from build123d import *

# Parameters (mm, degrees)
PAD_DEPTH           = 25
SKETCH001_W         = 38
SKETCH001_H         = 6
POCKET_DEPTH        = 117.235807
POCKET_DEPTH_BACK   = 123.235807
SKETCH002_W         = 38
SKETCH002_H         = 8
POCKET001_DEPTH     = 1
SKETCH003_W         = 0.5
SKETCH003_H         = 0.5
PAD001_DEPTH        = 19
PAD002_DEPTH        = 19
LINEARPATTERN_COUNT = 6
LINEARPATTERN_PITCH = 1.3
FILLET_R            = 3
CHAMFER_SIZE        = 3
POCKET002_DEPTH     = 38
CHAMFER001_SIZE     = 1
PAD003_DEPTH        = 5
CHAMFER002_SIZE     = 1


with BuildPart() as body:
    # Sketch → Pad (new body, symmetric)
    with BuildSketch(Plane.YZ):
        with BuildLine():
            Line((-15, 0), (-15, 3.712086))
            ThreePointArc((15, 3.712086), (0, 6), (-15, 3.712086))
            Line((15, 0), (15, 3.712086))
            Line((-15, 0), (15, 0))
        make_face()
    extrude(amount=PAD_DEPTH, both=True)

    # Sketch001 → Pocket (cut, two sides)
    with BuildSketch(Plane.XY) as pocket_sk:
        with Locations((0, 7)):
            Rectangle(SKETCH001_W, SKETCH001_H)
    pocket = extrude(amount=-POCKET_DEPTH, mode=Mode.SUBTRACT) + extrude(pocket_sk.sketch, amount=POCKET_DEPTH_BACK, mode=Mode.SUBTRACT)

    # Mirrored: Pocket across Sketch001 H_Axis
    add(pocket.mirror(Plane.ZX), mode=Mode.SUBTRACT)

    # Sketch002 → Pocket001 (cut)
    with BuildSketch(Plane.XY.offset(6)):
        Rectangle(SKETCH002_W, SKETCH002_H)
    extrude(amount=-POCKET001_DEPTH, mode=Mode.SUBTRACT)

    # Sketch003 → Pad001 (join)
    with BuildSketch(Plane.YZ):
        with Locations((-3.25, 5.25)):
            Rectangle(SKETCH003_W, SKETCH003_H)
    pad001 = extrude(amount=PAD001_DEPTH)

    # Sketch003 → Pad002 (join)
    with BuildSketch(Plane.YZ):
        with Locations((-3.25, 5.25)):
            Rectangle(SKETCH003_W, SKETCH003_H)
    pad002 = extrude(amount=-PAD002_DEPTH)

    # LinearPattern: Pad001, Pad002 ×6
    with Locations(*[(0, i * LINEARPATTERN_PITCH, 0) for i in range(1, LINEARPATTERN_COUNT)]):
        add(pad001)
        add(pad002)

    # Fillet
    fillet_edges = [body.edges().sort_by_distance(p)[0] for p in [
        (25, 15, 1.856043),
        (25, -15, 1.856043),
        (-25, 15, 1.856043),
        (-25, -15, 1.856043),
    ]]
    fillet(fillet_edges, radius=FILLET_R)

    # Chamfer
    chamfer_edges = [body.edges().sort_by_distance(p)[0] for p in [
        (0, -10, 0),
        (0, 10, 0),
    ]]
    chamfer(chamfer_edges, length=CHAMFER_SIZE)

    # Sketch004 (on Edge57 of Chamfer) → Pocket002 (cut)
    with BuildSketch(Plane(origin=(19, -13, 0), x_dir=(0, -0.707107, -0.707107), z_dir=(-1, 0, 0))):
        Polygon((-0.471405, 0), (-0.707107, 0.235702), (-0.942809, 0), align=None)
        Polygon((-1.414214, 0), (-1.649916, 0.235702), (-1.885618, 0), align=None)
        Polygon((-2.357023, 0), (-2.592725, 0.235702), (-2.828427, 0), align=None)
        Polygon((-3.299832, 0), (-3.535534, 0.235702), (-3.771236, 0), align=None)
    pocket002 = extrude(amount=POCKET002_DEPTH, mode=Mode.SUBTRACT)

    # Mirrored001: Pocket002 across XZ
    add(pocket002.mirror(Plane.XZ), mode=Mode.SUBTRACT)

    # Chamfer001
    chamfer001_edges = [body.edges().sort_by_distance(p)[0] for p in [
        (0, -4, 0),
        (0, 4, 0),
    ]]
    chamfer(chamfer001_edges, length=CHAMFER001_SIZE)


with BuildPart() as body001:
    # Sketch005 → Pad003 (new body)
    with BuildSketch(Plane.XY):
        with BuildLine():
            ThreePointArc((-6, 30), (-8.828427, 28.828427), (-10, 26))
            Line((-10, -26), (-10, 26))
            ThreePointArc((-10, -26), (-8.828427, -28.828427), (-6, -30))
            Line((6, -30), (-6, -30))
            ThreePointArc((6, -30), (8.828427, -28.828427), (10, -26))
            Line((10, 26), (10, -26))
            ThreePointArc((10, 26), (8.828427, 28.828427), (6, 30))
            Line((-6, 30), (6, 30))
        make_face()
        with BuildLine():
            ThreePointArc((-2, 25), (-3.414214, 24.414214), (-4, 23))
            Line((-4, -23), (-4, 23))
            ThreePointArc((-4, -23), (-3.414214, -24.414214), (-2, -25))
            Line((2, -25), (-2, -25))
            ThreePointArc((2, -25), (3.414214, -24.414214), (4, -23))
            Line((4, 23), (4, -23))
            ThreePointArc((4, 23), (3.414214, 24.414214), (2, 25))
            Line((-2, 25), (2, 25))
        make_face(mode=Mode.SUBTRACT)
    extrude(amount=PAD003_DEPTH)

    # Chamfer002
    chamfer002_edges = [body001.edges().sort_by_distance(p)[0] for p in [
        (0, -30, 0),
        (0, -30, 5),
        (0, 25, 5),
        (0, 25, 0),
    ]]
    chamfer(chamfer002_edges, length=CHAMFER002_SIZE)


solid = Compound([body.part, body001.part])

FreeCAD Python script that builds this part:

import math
import FreeCAD as App
import Part
import Sketcher

V = App.Vector
Q = App.Units.Quantity


def edges_at(feature, points):
    """Names of the edges that pass closest to the given points."""
    edges = feature.Shape.Edges
    near = lambda p: min(range(len(edges)), key=lambda i: edges[i].distToShape(Part.Vertex(*p))[0])
    return sorted({f"Edge{near(p) + 1}" for p in points})


def add_polygon(sketch, points):
    """Adds a closed chain of lines whose ends are joined by coincident constraints."""
    first, n = sketch.GeometryCount, len(points)
    for a, b in zip(points, points[1:] + points[:1]):
        sketch.addGeometry(Part.LineSegment(App.Vector(*a, 0), App.Vector(*b, 0)), False)
    for i in range(n):
        sketch.addConstraint(Sketcher.Constraint("Coincident", first + i, 2, first + (i + 1) % n, 1))

doc = App.newDocument("Part")
params = doc.addObject("Spreadsheet::Sheet", "Params")
for row, (alias, value) in enumerate([
    ("sketch1_width", "30 mm"),
    ("pad1_length", "50 mm"),
    ("sketch2_width", "38 mm"),
    ("sketch2_height", "6 mm"),
    ("sketch3_width", "38 mm"),
    ("sketch3_height", "8 mm"),
    ("pocket2_length", "1 mm"),
    ("sketch4_width", "0.5 mm"),
    ("pad2_length", "19 mm"),
    ("sketch5_width", "0.5 mm"),
    ("pad3_length", "19 mm"),
    ("linearpattern_pitch", "1.3 mm"),
    ("fillet_radius", "3 mm"),
    ("chamfer_size", "3 mm"),
    ("pocket3_length", "38 mm"),
    ("chamfer2_size", "1 mm"),
    ("sketch7_radius", "4 mm"),
    ("sketch7_radius2", "1.999999 mm"),
    ("sketch7_width", "12 mm"),
    ("sketch7_width2", "4 mm"),
    ("sketch7_height", "52 mm"),
    ("pad4_length", "5 mm"),
    ("chamfer3_size", "1 mm"),
], start=1):
    params.set(f"A{row}", alias)
    params.set(f"B{row}", "=" + value)
    params.setAlias(f"B{row}", alias)

body = doc.addObject("PartDesign::Body", "Body")

# Sketch on YZ plane
sketch1 = body.newObject("Sketcher::SketchObject", "Sketch")
sketch1.AttachmentSupport = (doc.getObject("YZ_Plane"), [""])
sketch1.MapMode = "FlatFace"
sketch1.addGeometry(Part.LineSegment(V(-15, 3.7, 0), V(-15, 0, 0)), False)
sketch1.addGeometry(Part.LineSegment(V(-15, 0, 0), V(15, 0, 0)), False)
sketch1.addGeometry(Part.LineSegment(V(15, 0, 0), V(15, 3.7, 0)), False)
sketch1.addGeometry(Part.ArcOfCircle(Part.Circle(V(0, -44.3, 0), V(0, 0, 1), 50.3), math.radians(73), math.radians(107)), False)
sketch1.addConstraint(Sketcher.Constraint("Coincident", 0, 2, 1, 1))
sketch1.addConstraint(Sketcher.Constraint("Coincident", 1, 2, 2, 1))
sketch1.addConstraint(Sketcher.Constraint("Coincident", 2, 2, 3, 1))
sketch1.addConstraint(Sketcher.Constraint("Coincident", 3, 2, 0, 1))
sketch1.addConstraint(Sketcher.Constraint("Vertical", 0))
sketch1.addConstraint(Sketcher.Constraint("Horizontal", 1))
sketch1.addConstraint(Sketcher.Constraint("Vertical", 2))
sketch1.addConstraint(Sketcher.Constraint("Symmetric", 0, 2, 1, 2, -1, 1))
sketch1.addConstraint(Sketcher.Constraint("PointOnObject", 3, 3, -2))
sketch1.addConstraint(Sketcher.Constraint("DistanceX", 1, 1, 1, 2, Q("30 mm")))
sketch1.addConstraint(Sketcher.Constraint("Radius", 3, Q("50.315386 mm")))
sketch1.addConstraint(Sketcher.Constraint("DistanceY", 0, 2, 0, 1, Q("3.712086 mm")))
sketch1.setExpression("Constraints[9]", "Params.sketch1_width")
pad1 = body.newObject("PartDesign::Pad", "Pad")
pad1.Profile = sketch1
pad1.setExpression("Length", "Params.pad1_length")
pad1.Midplane = True

# Sketch on XY plane
sketch2 = body.newObject("Sketcher::SketchObject", "Sketch001")
sketch2.AttachmentSupport = (doc.getObject("XY_Plane"), [""])
sketch2.MapMode = "FlatFace"
add_polygon(sketch2, [(-19, 10), (-19, 4), (19, 4), (19, 10)])  # lines 0-3
sketch2.addConstraint(Sketcher.Constraint("Vertical", 0))
sketch2.addConstraint(Sketcher.Constraint("Horizontal", 1))
sketch2.addConstraint(Sketcher.Constraint("Vertical", 2))
sketch2.addConstraint(Sketcher.Constraint("Horizontal", 3))
sketch2.addConstraint(Sketcher.Constraint("DistanceX", 1, 1, 1, 2, Q("38 mm")))
sketch2.addConstraint(Sketcher.Constraint("DistanceY", 0, 2, 0, 1, Q("6 mm")))
sketch2.addConstraint(Sketcher.Constraint("DistanceX", 0, 2, -1, 1, Q("19 mm")))
sketch2.addConstraint(Sketcher.Constraint("DistanceY", -1, 1, 0, 2, Q("4 mm")))
sketch2.setExpression("Constraints[8]", "Params.sketch2_width")
sketch2.setExpression("Constraints[9]", "Params.sketch2_height")
pocket1 = body.newObject("PartDesign::Pocket", "Pocket")
pocket1.Profile = sketch2
pocket1.Type = "ThroughAll"
pocket1.Midplane = True
doc.recompute()

mirrored = body.newObject("PartDesign::Mirrored", "Mirrored")
mirrored.Originals = [pocket1]
mirrored.MirrorPlane = (doc.getObject("XZ_Plane"), [""])
body.Tip = mirrored

# Sketch on XY plane
sketch3 = body.newObject("Sketcher::SketchObject", "Sketch002")
sketch3.AttachmentSupport = (doc.getObject("XY_Plane"), [""])
sketch3.MapMode = "FlatFace"
sketch3.AttachmentOffset = App.Placement(V(0, 0, 6), App.Rotation())
add_polygon(sketch3, [(-19, 4), (-19, -4), (19, -4), (19, 4)])  # lines 0-3
sketch3.addConstraint(Sketcher.Constraint("Vertical", 0))
sketch3.addConstraint(Sketcher.Constraint("Horizontal", 1))
sketch3.addConstraint(Sketcher.Constraint("Vertical", 2))
sketch3.addConstraint(Sketcher.Constraint("Horizontal", 3))
sketch3.addConstraint(Sketcher.Constraint("Symmetric", 0, 2, 2, 2, -1, 1))
sketch3.addConstraint(Sketcher.Constraint("DistanceX", 1, 1, 1, 2, Q("38 mm")))
sketch3.addConstraint(Sketcher.Constraint("DistanceY", 0, 2, 0, 1, Q("8 mm")))
sketch3.setExpression("Constraints[9]", "Params.sketch3_width")
sketch3.setExpression("Constraints[10]", "Params.sketch3_height")
pocket2 = body.newObject("PartDesign::Pocket", "Pocket001")
pocket2.Profile = sketch3
pocket2.setExpression("Length", "Params.pocket2_length")

# Sketch on YZ plane
sketch4 = body.newObject("Sketcher::SketchObject", "Sketch003")
sketch4.AttachmentSupport = (doc.getObject("YZ_Plane"), [""])
sketch4.MapMode = "FlatFace"
add_polygon(sketch4, [(-3.5, 5.5), (-3.5, 5), (-3, 5), (-3, 5.5)])  # lines 0-3
sketch4.addConstraint(Sketcher.Constraint("Vertical", 0))
sketch4.addConstraint(Sketcher.Constraint("Horizontal", 1))
sketch4.addConstraint(Sketcher.Constraint("Vertical", 2))
sketch4.addConstraint(Sketcher.Constraint("Horizontal", 3))
sketch4.addConstraint(Sketcher.Constraint("Equal", 3, 0))
sketch4.addConstraint(Sketcher.Constraint("DistanceX", 1, 1, 1, 2, Q("0.5 mm")))
sketch4.addConstraint(Sketcher.Constraint("DistanceY", -1, 1, 0, 2, Q("5 mm")))
sketch4.addConstraint(Sketcher.Constraint("DistanceX", 1, 2, -1, 1, Q("3 mm")))
sketch4.setExpression("Constraints[9]", "Params.sketch4_width")
pad2 = body.newObject("PartDesign::Pad", "Pad001")
pad2.Profile = sketch4
pad2.setExpression("Length", "Params.pad2_length")

# Sketch on YZ plane
sketch5 = body.newObject("Sketcher::SketchObject", "Sketch004")
sketch5.AttachmentSupport = (doc.getObject("YZ_Plane"), [""])
sketch5.MapMode = "FlatFace"
add_polygon(sketch5, [(-3.5, 5.5), (-3.5, 5), (-3, 5), (-3, 5.5)])  # lines 0-3
sketch5.addConstraint(Sketcher.Constraint("Vertical", 0))
sketch5.addConstraint(Sketcher.Constraint("Horizontal", 1))
sketch5.addConstraint(Sketcher.Constraint("Vertical", 2))
sketch5.addConstraint(Sketcher.Constraint("Horizontal", 3))
sketch5.addConstraint(Sketcher.Constraint("Equal", 3, 0))
sketch5.addConstraint(Sketcher.Constraint("DistanceX", 1, 1, 1, 2, Q("0.5 mm")))
sketch5.addConstraint(Sketcher.Constraint("DistanceY", -1, 1, 0, 2, Q("5 mm")))
sketch5.addConstraint(Sketcher.Constraint("DistanceX", 1, 2, -1, 1, Q("3 mm")))
sketch5.setExpression("Constraints[9]", "Params.sketch5_width")
pad3 = body.newObject("PartDesign::Pad", "Pad002")
pad3.Profile = sketch5
pad3.setExpression("Length", "Params.pad3_length")
pad3.Reversed = True
doc.recompute()

linearpattern = body.newObject("PartDesign::LinearPattern", "LinearPattern")
linearpattern.Originals = [pad2, pad3]
linearpattern.Direction = (doc.getObject("Y_Axis"), [""])
linearpattern.Mode = "offset"
linearpattern.setExpression("Offset", "Params.linearpattern_pitch")
linearpattern.Occurrences = 6
body.Tip = linearpattern
doc.recompute()

fillet = body.newObject("PartDesign::Fillet", "Fillet")
fillet.Base = (linearpattern, edges_at(linearpattern, [
    (25, 15, 1.856),
    (25, -15, 1.856),
    (-25, 15, 1.856),
    (-25, -15, 1.856),
]))
fillet.setExpression("Radius", "Params.fillet_radius")
doc.recompute()

chamfer = body.newObject("PartDesign::Chamfer", "Chamfer")
chamfer.Base = (fillet, edges_at(fillet, [(0, -10, 0), (0, 10, 0)]))
chamfer.setExpression("Size", "Params.chamfer_size")

# Sketch on YZ plane
sketch6 = body.newObject("Sketcher::SketchObject", "Sketch005")
sketch6.AttachmentSupport = (doc.getObject("YZ_Plane"), [""])
sketch6.MapMode = "FlatFace"
sketch6.AttachmentOffset = App.Placement(V(0, 0, 19), App.Rotation())
add_polygon(sketch6, [(-12.67, 0.33), (-12.67, 0.67), (-12.33, 0.67)])  # lines 0-2
add_polygon(sketch6, [(-12, 1), (-12, 1.33), (-11.67, 1.33)])  # lines 3-5
add_polygon(sketch6, [(-11.33, 1.67), (-11.33, 2), (-11, 2)])  # lines 6-8
add_polygon(sketch6, [(-10.67, 2.33), (-10.67, 2.67), (-10.33, 2.67)])  # lines 9-11
sketch6.addConstraint(Sketcher.Constraint("Vertical", 0))
sketch6.addConstraint(Sketcher.Constraint("Horizontal", 1))
sketch6.addConstraint(Sketcher.Constraint("Vertical", 3))
sketch6.addConstraint(Sketcher.Constraint("Horizontal", 4))
sketch6.addConstraint(Sketcher.Constraint("Vertical", 6))
sketch6.addConstraint(Sketcher.Constraint("Horizontal", 7))
sketch6.addConstraint(Sketcher.Constraint("Vertical", 9))
sketch6.addConstraint(Sketcher.Constraint("Horizontal", 10))
sketch6.addConstraint(Sketcher.Constraint("Parallel", 2, 5))
sketch6.addConstraint(Sketcher.Constraint("Parallel", 5, 8))
sketch6.addConstraint(Sketcher.Constraint("Parallel", 8, 11))
sketch6.addConstraint(Sketcher.Constraint("Equal", 1, 4))
sketch6.addConstraint(Sketcher.Constraint("Equal", 4, 7))
sketch6.addConstraint(Sketcher.Constraint("Equal", 7, 10))
sketch6.addConstraint(Sketcher.Constraint("Equal", 10, 0))
sketch6.addConstraint(Sketcher.Constraint("DistanceX", 3, 2, -1, 1, Q("12 mm")))
sketch6.addConstraint(Sketcher.Constraint("DistanceY", -1, 1, 5, 2, Q("1 mm")))
sketch6.addConstraint(Sketcher.Constraint("DistanceY", -1, 1, 6, 2, Q("2 mm")))
sketch6.addConstraint(Sketcher.Constraint("DistanceX", 7, 2, -1, 1, Q("11 mm")))
sketch6.addConstraint(Sketcher.Constraint("DistanceY", 2, 2, 3, 2, Q("1 mm")))
sketch6.addConstraint(Sketcher.Constraint("DistanceX", 0, 2, 4, 2, Q("1 mm")))
sketch6.addConstraint(Sketcher.Constraint("DistanceX", 1, 2, 6, 2, Q("1 mm")))
sketch6.addConstraint(Sketcher.Constraint("DistanceY", 8, 2, 9, 2, Q("1 mm")))
sketch6.addConstraint(Sketcher.Constraint("DistanceX", 4, 2, 9, 2, Q("1 mm")))
pocket3 = body.newObject("PartDesign::Pocket", "Pocket002")
pocket3.Profile = sketch6
pocket3.setExpression("Length", "Params.pocket3_length")
doc.recompute()

mirrored2 = body.newObject("PartDesign::Mirrored", "Mirrored001")
mirrored2.Originals = [pocket3]
mirrored2.MirrorPlane = (doc.getObject("XZ_Plane"), [""])
body.Tip = mirrored2
doc.recompute()

chamfer2 = body.newObject("PartDesign::Chamfer", "Chamfer001")
chamfer2.Base = (mirrored2, edges_at(mirrored2, [(0, -4, 0), (0, 4, 0)]))
chamfer2.setExpression("Size", "Params.chamfer2_size")
body2 = doc.addObject("PartDesign::Body", "Body001")

# Sketch on XY plane
sketch7 = body2.newObject("Sketcher::SketchObject", "Sketch006")
sketch7.AttachmentSupport = (doc.getObject("XY_Plane001"), [""])
sketch7.MapMode = "FlatFace"
sketch7.addGeometry(Part.ArcOfCircle(Part.Circle(V(-6, 26, 0), V(0, 0, 1), 4), math.radians(90), math.radians(180)), False)
sketch7.addGeometry(Part.LineSegment(V(-10, 26, 0), V(-10, -26, 0)), False)
sketch7.addGeometry(Part.ArcOfCircle(Part.Circle(V(-6, -26, 0), V(0, 0, 1), 4), math.radians(-180), math.radians(-90)), False)
sketch7.addGeometry(Part.LineSegment(V(-6, -30, 0), V(6, -30, 0)), False)
sketch7.addGeometry(Part.ArcOfCircle(Part.Circle(V(6, -26, 0), V(0, 0, 1), 4), math.radians(-90), math.radians(0)), False)
sketch7.addGeometry(Part.LineSegment(V(10, -26, 0), V(10, 26, 0)), False)
sketch7.addGeometry(Part.ArcOfCircle(Part.Circle(V(6, 26, 0), V(0, 0, 1), 4), math.radians(0), math.radians(90)), False)
sketch7.addGeometry(Part.LineSegment(V(6, 30, 0), V(-6, 30, 0)), False)
sketch7.addGeometry(Part.ArcOfCircle(Part.Circle(V(-2, 23, 0), V(0, 0, 1), 2), math.radians(90), math.radians(180)), False)
sketch7.addGeometry(Part.LineSegment(V(-2, 25, 0), V(2, 25, 0)), False)
sketch7.addGeometry(Part.ArcOfCircle(Part.Circle(V(2, 23, 0), V(0, 0, 1), 2), math.radians(0), math.radians(90)), False)
sketch7.addGeometry(Part.LineSegment(V(4, 23, 0), V(4, -23, 0)), False)
sketch7.addGeometry(Part.ArcOfCircle(Part.Circle(V(2, -23, 0), V(0, 0, 1), 2), math.radians(-90), math.radians(0)), False)
sketch7.addGeometry(Part.LineSegment(V(2, -25, 0), V(-2, -25, 0)), False)
sketch7.addGeometry(Part.ArcOfCircle(Part.Circle(V(-2, -23, 0), V(0, 0, 1), 2), math.radians(180), math.radians(270)), False)
sketch7.addGeometry(Part.LineSegment(V(-4, -23, 0), V(-4, 23, 0)), False)
sketch7.addConstraint(Sketcher.Constraint("Tangent", 0, 2, 1, 1))
sketch7.addConstraint(Sketcher.Constraint("Tangent", 1, 2, 2, 1))
sketch7.addConstraint(Sketcher.Constraint("Tangent", 2, 2, 3, 1))
sketch7.addConstraint(Sketcher.Constraint("Tangent", 3, 2, 4, 1))
sketch7.addConstraint(Sketcher.Constraint("Tangent", 4, 2, 5, 1))
sketch7.addConstraint(Sketcher.Constraint("Tangent", 5, 2, 6, 1))
sketch7.addConstraint(Sketcher.Constraint("Tangent", 6, 2, 7, 1))
sketch7.addConstraint(Sketcher.Constraint("Tangent", 7, 2, 0, 1))
sketch7.addConstraint(Sketcher.Constraint("Tangent", 8, 1, 9, 1))
sketch7.addConstraint(Sketcher.Constraint("Tangent", 9, 2, 10, 2))
sketch7.addConstraint(Sketcher.Constraint("Tangent", 10, 1, 11, 1))
sketch7.addConstraint(Sketcher.Constraint("Tangent", 11, 2, 12, 2))
sketch7.addConstraint(Sketcher.Constraint("Tangent", 12, 1, 13, 1))
sketch7.addConstraint(Sketcher.Constraint("Tangent", 13, 2, 14, 2))
sketch7.addConstraint(Sketcher.Constraint("Tangent", 14, 1, 15, 1))
sketch7.addConstraint(Sketcher.Constraint("Tangent", 15, 2, 8, 2))
sketch7.addConstraint(Sketcher.Constraint("Vertical", 1))
sketch7.addConstraint(Sketcher.Constraint("Horizontal", 3))
sketch7.addConstraint(Sketcher.Constraint("Vertical", 5))
sketch7.addConstraint(Sketcher.Constraint("Horizontal", 7))
sketch7.addConstraint(Sketcher.Constraint("Horizontal", 9))
sketch7.addConstraint(Sketcher.Constraint("Vertical", 11))
sketch7.addConstraint(Sketcher.Constraint("Horizontal", 13))
sketch7.addConstraint(Sketcher.Constraint("Vertical", 15))
sketch7.addConstraint(Sketcher.Constraint("Equal", 0, 2))
sketch7.addConstraint(Sketcher.Constraint("Equal", 2, 4))
sketch7.addConstraint(Sketcher.Constraint("Equal", 4, 6))
sketch7.addConstraint(Sketcher.Constraint("Equal", 8, 10))
sketch7.addConstraint(Sketcher.Constraint("Equal", 10, 12))
sketch7.addConstraint(Sketcher.Constraint("Equal", 12, 14))
sketch7.addConstraint(Sketcher.Constraint("Symmetric", 0, 3, 4, 3, -1, 1))
sketch7.addConstraint(Sketcher.Constraint("Symmetric", 8, 3, 12, 3, -1, 1))
sketch7.addConstraint(Sketcher.Constraint("Radius", 0, Q("4 mm")))
sketch7.addConstraint(Sketcher.Constraint("Radius", 8, Q("1.999999 mm")))
sketch7.addConstraint(Sketcher.Constraint("DistanceX", 3, 1, 3, 2, Q("12 mm")))
sketch7.addConstraint(Sketcher.Constraint("DistanceX", 9, 1, 9, 2, Q("4 mm")))
sketch7.addConstraint(Sketcher.Constraint("DistanceY", 1, 2, 1, 1, Q("52 mm")))
sketch7.addConstraint(Sketcher.Constraint("DistanceY", 11, 2, 11, 1, Q("46 mm")))
sketch7.setExpression("Constraints[32]", "Params.sketch7_radius")
sketch7.setExpression("Constraints[33]", "Params.sketch7_radius2")
sketch7.setExpression("Constraints[34]", "Params.sketch7_width")
sketch7.setExpression("Constraints[35]", "Params.sketch7_width2")
sketch7.setExpression("Constraints[36]", "Params.sketch7_height")
pad4 = body2.newObject("PartDesign::Pad", "Pad003")
pad4.Profile = sketch7
pad4.setExpression("Length", "Params.pad4_length")
doc.recompute()

chamfer3 = body2.newObject("PartDesign::Chamfer", "Chamfer002")
chamfer3.Base = (pad4, edges_at(pad4, [
    (0, -30, 0),
    (0, -30, 5),
    (0, 25, 5),
    (0, 25, 0),
]))
chamfer3.setExpression("Size", "Params.chamfer3_size")

doc.recompute()
